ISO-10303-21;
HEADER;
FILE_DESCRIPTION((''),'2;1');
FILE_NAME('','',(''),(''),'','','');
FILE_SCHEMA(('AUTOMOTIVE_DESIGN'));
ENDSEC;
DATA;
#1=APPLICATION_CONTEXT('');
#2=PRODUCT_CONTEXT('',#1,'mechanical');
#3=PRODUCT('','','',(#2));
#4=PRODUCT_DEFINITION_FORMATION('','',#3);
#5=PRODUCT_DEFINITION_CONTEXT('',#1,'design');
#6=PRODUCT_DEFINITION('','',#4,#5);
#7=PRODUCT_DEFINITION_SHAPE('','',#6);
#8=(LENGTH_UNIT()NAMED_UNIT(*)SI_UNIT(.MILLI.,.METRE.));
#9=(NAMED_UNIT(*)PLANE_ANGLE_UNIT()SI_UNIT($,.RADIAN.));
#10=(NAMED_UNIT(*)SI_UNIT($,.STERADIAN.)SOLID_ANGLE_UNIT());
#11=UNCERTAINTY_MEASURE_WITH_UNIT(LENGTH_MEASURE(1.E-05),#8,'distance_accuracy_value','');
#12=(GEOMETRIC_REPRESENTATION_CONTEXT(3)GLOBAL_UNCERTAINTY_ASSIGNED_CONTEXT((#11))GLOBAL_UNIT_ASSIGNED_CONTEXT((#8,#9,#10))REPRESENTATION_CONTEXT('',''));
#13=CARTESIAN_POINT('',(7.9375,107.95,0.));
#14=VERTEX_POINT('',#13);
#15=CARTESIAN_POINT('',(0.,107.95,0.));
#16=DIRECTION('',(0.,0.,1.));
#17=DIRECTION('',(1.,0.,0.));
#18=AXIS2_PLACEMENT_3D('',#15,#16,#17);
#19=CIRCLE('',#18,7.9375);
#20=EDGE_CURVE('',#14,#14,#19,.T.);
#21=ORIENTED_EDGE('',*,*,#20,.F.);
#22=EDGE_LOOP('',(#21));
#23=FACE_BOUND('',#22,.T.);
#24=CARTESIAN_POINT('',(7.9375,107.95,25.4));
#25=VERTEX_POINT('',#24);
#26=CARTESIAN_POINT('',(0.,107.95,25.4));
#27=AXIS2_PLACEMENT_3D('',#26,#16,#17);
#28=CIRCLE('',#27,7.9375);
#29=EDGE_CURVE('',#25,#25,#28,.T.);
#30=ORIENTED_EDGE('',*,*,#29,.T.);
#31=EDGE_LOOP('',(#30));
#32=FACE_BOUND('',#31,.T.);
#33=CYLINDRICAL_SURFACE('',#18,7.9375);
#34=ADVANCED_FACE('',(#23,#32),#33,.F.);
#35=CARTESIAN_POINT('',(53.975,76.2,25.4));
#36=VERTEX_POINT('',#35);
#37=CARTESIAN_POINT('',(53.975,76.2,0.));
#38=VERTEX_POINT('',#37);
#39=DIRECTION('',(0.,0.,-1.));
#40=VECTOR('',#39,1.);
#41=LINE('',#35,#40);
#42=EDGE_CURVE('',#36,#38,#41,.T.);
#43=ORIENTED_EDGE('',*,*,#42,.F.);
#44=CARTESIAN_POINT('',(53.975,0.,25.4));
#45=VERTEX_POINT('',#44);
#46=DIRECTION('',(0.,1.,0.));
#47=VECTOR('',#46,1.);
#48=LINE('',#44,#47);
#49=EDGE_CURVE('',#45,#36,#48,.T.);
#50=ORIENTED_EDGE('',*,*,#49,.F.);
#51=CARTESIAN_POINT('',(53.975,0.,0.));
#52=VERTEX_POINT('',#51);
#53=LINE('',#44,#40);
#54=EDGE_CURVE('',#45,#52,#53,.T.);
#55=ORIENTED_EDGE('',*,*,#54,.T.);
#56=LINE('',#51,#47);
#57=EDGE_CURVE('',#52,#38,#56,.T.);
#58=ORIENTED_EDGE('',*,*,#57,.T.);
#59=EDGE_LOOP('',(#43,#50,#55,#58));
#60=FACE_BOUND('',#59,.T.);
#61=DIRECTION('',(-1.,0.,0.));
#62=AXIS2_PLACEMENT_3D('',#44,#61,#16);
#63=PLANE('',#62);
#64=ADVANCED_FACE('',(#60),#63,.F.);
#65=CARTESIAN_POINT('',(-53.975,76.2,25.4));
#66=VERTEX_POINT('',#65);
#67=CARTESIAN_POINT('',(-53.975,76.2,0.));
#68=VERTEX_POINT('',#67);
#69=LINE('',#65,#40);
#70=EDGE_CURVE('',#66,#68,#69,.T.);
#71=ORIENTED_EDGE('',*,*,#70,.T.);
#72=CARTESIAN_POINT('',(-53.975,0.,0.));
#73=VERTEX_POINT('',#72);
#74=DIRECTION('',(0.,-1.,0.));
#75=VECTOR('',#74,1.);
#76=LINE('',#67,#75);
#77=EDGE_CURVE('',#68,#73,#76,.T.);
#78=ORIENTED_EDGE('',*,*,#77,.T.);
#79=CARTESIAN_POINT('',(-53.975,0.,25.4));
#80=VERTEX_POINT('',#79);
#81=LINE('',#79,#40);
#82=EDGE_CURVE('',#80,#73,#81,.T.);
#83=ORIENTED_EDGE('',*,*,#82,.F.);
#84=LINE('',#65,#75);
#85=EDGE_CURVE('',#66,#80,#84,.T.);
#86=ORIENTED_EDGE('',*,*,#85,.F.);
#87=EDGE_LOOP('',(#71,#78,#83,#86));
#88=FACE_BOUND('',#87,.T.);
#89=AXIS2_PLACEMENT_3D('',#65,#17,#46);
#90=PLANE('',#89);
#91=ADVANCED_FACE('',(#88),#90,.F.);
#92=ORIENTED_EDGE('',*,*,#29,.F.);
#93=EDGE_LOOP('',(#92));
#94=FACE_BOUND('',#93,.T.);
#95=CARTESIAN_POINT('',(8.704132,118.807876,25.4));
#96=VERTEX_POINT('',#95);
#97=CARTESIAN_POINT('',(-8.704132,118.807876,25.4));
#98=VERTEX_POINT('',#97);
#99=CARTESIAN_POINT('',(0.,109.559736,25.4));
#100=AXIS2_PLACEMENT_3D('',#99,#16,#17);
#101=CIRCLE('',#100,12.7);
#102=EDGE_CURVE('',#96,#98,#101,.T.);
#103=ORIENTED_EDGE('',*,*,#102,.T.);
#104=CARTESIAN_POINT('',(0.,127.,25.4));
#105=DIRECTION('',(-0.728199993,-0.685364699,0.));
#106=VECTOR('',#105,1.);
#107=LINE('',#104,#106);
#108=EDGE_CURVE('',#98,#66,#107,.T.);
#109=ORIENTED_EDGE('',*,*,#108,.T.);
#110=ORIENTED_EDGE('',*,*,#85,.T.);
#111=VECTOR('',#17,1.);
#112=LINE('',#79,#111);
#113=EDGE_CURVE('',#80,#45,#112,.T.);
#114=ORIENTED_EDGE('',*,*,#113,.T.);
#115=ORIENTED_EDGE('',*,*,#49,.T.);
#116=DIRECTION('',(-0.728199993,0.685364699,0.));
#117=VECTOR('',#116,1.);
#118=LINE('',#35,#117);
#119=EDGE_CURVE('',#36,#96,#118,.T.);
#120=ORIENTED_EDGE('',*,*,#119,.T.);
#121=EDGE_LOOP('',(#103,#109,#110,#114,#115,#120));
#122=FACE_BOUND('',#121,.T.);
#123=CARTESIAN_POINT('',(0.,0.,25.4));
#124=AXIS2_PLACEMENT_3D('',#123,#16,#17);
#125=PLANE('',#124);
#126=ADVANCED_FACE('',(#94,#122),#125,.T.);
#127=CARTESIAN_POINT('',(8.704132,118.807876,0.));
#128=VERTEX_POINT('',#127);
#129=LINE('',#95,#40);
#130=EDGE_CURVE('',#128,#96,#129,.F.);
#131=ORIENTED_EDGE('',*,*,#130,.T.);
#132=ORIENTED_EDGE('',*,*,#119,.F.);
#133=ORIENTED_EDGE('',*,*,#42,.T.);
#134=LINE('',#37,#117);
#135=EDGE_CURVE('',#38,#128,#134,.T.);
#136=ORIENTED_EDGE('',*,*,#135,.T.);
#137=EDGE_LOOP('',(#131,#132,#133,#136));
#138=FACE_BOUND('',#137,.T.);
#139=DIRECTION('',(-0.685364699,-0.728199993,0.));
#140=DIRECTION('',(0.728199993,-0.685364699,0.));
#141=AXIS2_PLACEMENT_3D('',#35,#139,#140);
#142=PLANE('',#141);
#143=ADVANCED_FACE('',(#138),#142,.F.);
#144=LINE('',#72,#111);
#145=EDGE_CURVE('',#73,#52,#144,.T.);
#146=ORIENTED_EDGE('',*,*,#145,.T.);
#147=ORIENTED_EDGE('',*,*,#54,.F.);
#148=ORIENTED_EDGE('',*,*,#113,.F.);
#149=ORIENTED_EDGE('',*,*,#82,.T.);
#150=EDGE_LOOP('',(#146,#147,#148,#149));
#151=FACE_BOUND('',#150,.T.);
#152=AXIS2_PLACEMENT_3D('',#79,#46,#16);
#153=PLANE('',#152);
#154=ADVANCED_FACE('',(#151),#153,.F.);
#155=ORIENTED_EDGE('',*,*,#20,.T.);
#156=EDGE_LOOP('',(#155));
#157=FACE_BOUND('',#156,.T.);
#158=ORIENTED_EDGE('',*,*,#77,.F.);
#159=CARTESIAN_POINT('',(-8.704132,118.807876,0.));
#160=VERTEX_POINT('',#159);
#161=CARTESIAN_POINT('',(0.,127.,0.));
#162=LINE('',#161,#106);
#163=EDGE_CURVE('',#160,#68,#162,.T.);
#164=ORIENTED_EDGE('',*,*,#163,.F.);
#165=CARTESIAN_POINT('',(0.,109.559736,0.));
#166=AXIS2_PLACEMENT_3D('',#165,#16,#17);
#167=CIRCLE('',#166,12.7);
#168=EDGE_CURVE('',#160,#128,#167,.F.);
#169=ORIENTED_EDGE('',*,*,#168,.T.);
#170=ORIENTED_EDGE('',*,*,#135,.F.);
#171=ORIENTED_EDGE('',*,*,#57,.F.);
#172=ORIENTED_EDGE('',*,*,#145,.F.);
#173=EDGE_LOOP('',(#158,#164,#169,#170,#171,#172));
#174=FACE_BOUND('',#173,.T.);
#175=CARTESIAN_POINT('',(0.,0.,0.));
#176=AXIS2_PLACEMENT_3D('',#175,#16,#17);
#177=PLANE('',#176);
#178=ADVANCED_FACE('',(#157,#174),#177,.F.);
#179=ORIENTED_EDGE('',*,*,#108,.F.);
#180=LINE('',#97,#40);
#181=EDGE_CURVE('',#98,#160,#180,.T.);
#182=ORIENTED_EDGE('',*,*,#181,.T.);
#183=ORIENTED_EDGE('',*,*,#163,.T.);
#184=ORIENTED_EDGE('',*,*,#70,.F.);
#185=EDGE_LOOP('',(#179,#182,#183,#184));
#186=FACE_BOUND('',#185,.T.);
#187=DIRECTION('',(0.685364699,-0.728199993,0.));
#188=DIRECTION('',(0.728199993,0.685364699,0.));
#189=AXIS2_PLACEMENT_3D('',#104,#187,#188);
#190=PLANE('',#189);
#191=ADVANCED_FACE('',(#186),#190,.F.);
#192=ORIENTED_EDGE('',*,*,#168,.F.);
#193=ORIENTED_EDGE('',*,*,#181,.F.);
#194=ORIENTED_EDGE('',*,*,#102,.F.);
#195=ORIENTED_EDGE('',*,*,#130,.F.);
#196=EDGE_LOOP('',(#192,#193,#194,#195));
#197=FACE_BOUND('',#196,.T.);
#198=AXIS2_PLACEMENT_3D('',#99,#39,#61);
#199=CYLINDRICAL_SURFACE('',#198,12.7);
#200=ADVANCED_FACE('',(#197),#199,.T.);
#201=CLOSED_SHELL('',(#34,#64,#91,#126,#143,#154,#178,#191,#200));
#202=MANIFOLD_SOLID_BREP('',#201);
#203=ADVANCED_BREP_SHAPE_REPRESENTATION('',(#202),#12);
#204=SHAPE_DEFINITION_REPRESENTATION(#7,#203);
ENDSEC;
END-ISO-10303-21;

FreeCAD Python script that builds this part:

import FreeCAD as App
import Part
import Sketcher
from FreeCAD import Vector
Q = App.Units.Quantity


def edges_at(feature, points):
    """Names of the edges that pass closest to the given points."""
    edges = feature.Shape.Edges
    near = lambda p: min(range(len(edges)), key=lambda i: edges[i].distToShape(Part.Vertex(*p))[0])
    return sorted({f"Edge{near(p) + 1}" for p in points})


def add_polygon(sketch, points):
    """Adds a closed chain of lines whose ends are joined by coincident constraints."""
    first, n = sketch.GeometryCount, len(points)
    for a, b in zip(points, points[1:] + points[:1]):
        sketch.addGeometry(Part.LineSegment(App.Vector(*a, 0), App.Vector(*b, 0)), False)
    for i in range(n):
        sketch.addConstraint(Sketcher.Constraint("Coincident", first + i, 2, first + (i + 1) % n, 1))

doc = App.newDocument("Part")
body = doc.addObject("PartDesign::Body", "Body")

# Sketch on XY plane
sketch1 = body.newObject("Sketcher::SketchObject", "Sketch")
sketch1.AttachmentSupport = (doc.getObject("XY_Plane"), [""])
sketch1.MapMode = "FlatFace"
add_polygon(sketch1, [(-54, 0), (54, 0), (54, 76), (0, 127), (-54, 76)])  # lines 0-4
sketch1.addConstraint([
    Sketcher.Constraint("Horizontal", 0),
    Sketcher.Constraint("Vertical", 1),
    Sketcher.Constraint("Vertical", 4),
    Sketcher.Constraint("Symmetric", 0, 2, 4, 2, -1, 1),
    Sketcher.Constraint("PointOnObject", 2, 2, -2),
    Sketcher.Constraint("Horizontal", 1, 2, 3, 2),
    Sketcher.Constraint("DistanceY", 1, 1, 1, 2, Q("3 in")),
    Sketcher.Constraint("DistanceY", -1, 1, 2, 2, Q("5 in")),
    Sketcher.Constraint("DistanceX", 0, 1, 0, 2, Q("4.25 in")),
])
pad1 = body.newObject("PartDesign::Pad", "Pad")
pad1.Profile = sketch1
pad1.Length = Q("1 in")
doc.recompute()

fillet = body.newObject("PartDesign::Fillet", "Fillet")
fillet.Base = (pad1, edges_at(pad1, [(0, 127, 12.7)]))
fillet.Radius = Q("0.5 in")

# Sketch on XY plane
sketch2 = body.newObject("Sketcher::SketchObject", "Sketch001")
sketch2.AttachmentSupport = (doc.getObject("XY_Plane"), [""])
sketch2.MapMode = "FlatFace"
sketch2.AttachmentOffset = App.Placement(Vector(0, 0, 1 * 25.4), App.Rotation())
sketch2.addGeometry(Part.Circle(Vector(0, 108, 0), Vector(0, 0, 1), 8), False)
sketch2.addConstraint([
    Sketcher.Constraint("PointOnObject", 0, 3, -2),
    Sketcher.Constraint("Diameter", 0, Q("0.625 in")),
    Sketcher.Constraint("DistanceY", -1, 1, 0, 3, Q("4.25 in")),
])
pocket1 = body.newObject("PartDesign::Pocket", "Pocket")
pocket1.Profile = sketch2
pocket1.Length = Q("1 in")

doc.recompute()
